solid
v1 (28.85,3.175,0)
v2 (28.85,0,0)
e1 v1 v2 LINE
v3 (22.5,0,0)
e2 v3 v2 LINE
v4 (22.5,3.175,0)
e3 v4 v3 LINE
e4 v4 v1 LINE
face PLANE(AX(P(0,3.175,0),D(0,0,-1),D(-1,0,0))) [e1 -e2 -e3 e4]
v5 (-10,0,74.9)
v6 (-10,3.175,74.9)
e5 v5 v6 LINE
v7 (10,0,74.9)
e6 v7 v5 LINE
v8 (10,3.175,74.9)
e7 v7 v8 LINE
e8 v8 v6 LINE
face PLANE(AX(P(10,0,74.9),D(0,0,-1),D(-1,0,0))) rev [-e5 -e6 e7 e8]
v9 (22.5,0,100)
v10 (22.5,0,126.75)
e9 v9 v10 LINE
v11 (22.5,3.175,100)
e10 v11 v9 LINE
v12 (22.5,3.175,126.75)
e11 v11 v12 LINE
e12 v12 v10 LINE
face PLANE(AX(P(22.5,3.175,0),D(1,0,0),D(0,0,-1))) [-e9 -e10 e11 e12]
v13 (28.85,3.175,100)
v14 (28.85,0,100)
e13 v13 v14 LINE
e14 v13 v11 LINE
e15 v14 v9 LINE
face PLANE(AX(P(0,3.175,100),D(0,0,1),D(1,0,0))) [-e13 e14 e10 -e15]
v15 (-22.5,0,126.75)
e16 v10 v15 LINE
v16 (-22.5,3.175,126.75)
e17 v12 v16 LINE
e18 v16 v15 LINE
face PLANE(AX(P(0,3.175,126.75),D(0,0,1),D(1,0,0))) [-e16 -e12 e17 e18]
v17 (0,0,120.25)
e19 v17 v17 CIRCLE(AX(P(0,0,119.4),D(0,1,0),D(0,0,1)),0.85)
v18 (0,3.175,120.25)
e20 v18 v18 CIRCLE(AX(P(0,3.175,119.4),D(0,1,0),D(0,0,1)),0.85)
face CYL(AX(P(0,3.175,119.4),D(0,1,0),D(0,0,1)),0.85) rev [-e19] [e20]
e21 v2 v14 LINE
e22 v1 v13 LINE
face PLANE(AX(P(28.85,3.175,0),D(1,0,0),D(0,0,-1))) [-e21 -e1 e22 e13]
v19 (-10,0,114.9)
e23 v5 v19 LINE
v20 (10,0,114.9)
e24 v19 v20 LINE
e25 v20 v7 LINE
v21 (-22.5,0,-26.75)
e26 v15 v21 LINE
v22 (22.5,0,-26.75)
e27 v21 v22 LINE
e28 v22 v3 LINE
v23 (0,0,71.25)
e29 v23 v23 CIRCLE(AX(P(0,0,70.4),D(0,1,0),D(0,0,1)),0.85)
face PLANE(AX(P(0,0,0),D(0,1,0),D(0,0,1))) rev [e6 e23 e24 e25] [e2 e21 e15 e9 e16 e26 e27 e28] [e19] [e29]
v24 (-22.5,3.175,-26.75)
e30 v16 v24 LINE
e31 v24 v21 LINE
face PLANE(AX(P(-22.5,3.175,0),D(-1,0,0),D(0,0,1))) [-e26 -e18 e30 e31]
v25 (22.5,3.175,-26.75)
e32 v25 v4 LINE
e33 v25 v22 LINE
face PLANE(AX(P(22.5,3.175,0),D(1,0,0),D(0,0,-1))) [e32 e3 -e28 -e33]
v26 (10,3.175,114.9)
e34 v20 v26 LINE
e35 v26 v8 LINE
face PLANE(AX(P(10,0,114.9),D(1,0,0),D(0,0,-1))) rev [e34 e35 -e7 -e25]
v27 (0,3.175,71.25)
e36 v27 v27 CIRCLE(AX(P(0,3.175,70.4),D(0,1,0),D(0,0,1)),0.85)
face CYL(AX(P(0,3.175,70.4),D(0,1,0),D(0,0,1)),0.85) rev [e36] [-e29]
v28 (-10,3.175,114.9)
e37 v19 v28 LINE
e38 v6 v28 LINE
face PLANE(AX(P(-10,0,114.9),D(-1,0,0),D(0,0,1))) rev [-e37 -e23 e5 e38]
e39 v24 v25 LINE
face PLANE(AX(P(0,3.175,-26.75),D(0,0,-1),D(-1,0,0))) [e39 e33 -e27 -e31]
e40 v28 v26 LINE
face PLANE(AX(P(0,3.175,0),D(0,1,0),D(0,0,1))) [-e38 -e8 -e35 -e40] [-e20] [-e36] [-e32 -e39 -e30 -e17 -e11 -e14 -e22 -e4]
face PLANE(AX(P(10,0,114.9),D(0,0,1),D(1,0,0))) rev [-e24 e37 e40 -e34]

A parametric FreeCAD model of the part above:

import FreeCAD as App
import Part
import Sketcher


def add_polygon(sketch, points):
    """Adds a closed chain of lines whose ends are joined by coincident constraints."""
    first, n = sketch.GeometryCount, len(points)
    for a, b in zip(points, points[1:] + points[:1]):
        sketch.addGeometry(Part.LineSegment(App.Vector(*a, 0), App.Vector(*b, 0)), False)
    for i in range(n):
        sketch.addConstraint(Sketcher.Constraint("Coincident", first + i, 2, first + (i + 1) % n, 1))

doc = App.newDocument("Part")
body = doc.addObject("PartDesign::Body", "Body")

# Sketch on XZ plane
sketch1 = body.newObject("Sketcher::SketchObject", "Sketch")
sketch1.AttachmentSupport = (doc.getObject("XZ_Plane"), [""])
sketch1.MapMode = "FlatFace"
add_polygon(sketch1, [(-22, -27), (-22, 127), (22, 127), (22, 100), (29, 100), (29, 0), (22, 0), (22, -27)])  # lines 0-7
sketch1.addConstraint(Sketcher.Constraint("Vertical", 0))
sketch1.addConstraint(Sketcher.Constraint("Horizontal", 1))
sketch1.addConstraint(Sketcher.Constraint("Vertical", 2))
sketch1.addConstraint(Sketcher.Constraint("Horizontal", 3))
sketch1.addConstraint(Sketcher.Constraint("Vertical", 4))
sketch1.addConstraint(Sketcher.Constraint("Horizontal", 5))
sketch1.addConstraint(Sketcher.Constraint("Vertical", 6))
sketch1.addConstraint(Sketcher.Constraint("Horizontal", 7))
sketch1.addConstraint(Sketcher.Constraint("PointOnObject", 4, 2, -1))
sketch1.addConstraint(Sketcher.Constraint("Vertical", 2, 2, 5, 2))
sketch1.addConstraint(Sketcher.Constraint("Equal", 2, 6))
sketch1.addConstraint(Sketcher.Constraint("DistanceX", 1, 1, 1, 2, 45.0))
sketch1.addConstraint(Sketcher.Constraint("DistanceY", 4, 2, 4, 1, 100.0))
sketch1.addConstraint(Sketcher.Constraint("DistanceY", 0, 1, 0, 2, 153.5))
sketch1.addConstraint(Sketcher.Constraint("DistanceX", 3, 1, 3, 2, 6.35))
sketch1.addConstraint(Sketcher.Constraint("DistanceX", 0, 2, -1, 1, 22.5))
pad1 = body.newObject("PartDesign::Pad", "Pad")
pad1.Profile = sketch1
pad1.Length = 3.175
pad1.Reversed = True

# Sketch on XZ plane
sketch2 = body.newObject("Sketcher::SketchObject", "Sketch001")
sketch2.AttachmentSupport = (doc.getObject("XZ_Plane"), [""])
sketch2.MapMode = "FlatFace"
sketch2.AttachmentOffset = App.Placement(App.Vector(0, 0, -3.175), App.Rotation())
add_polygon(sketch2, [(-10, 75), (-10, 115), (10, 115), (10, 75)])  # lines 0-3
sketch2.addConstraint(Sketcher.Constraint("Vertical", 0))
sketch2.addConstraint(Sketcher.Constraint("Horizontal", 1))
sketch2.addConstraint(Sketcher.Constraint("Vertical", 2))
sketch2.addConstraint(Sketcher.Constraint("Horizontal", 3))
sketch2.addConstraint(Sketcher.Constraint("DistanceX", 1, 1, 1, 2, 20.0))
sketch2.addConstraint(Sketcher.Constraint("DistanceY", 0, 1, 0, 2, 40.0))
sketch2.addConstraint(Sketcher.Constraint("DistanceX", 0, 2, -1, 1, 10.0))
sketch2.addConstraint(Sketcher.Constraint("DistanceY", -1, 1, 0, 2, 114.9))
pocket1 = body.newObject("PartDesign::Pocket", "Pocket")
pocket1.Profile = sketch2
pocket1.Type = "ThroughAll"
pocket1.Reversed = True

# Sketch on XZ plane
sketch3 = body.newObject("Sketcher::SketchObject", "Sketch002")
sketch3.AttachmentSupport = (doc.getObject("XZ_Plane"), [""])
sketch3.MapMode = "FlatFace"
sketch3.AttachmentOffset = App.Placement(App.Vector(0, 0, -3.175), App.Rotation())
sketch3.addGeometry(Part.Circle(App.Vector(0, 70.4, 0), App.Vector(0, 0, 1), 0.8), False)
sketch3.addGeometry(Part.Circle(App.Vector(0, 119.4, 0), App.Vector(0, 0, 1), 0.8), False)
sketch3.addConstraint(Sketcher.Constraint("Equal", 0, 1))
sketch3.addConstraint(Sketcher.Constraint("PointOnObject", 0, 3, -2))
sketch3.addConstraint(Sketcher.Constraint("PointOnObject", 1, 3, -2))
sketch3.addConstraint(Sketcher.Constraint("Diameter", 0, 1.7))
sketch3.addConstraint(Sketcher.Constraint("DistanceY", 0, 3, 1, 3, 49.0))
sketch3.addConstraint(Sketcher.Constraint("DistanceY", -1, 1, 0, 3, 70.4))
doc.recompute()
hole = body.newObject("PartDesign::Hole", "Hole")
hole.Profile = sketch3
hole.ThreadType = "None"
hole.Diameter = 1.7
hole.DepthType = "ThroughAll"
hole.Reversed = True

doc.recompute()
